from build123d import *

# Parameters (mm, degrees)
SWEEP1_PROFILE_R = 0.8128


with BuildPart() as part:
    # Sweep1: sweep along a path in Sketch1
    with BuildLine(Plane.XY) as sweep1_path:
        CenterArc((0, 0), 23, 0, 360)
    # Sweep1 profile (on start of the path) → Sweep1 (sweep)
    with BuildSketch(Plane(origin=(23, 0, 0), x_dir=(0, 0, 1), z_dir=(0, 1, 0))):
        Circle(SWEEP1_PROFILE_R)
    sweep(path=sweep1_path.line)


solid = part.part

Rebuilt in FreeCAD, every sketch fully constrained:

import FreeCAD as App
import Part
import Sketcher
from FreeCAD import Vector

doc = App.newDocument("Part")
body = doc.addObject("PartDesign::Body", "Body")

# Sketch on XZ plane
sketch1 = doc.addObject("Sketcher::SketchObject", "Sketch")
body.addObject(sketch1)
sketch1.AttachmentSupport = (doc.XZ_Plane, [""])
sketch1.MapMode = "FlatFace"
sketch1.addGeometry(Part.Circle(Vector(23, 0, 0), Vector(0, 0, 1), 0.8), False)
sketch1.addConstraint([
    Sketcher.Constraint("PointOnObject", 0, 3, -1),
    Sketcher.Constraint("DistanceX", -1, 1, 0, 3, 23.0),
    Sketcher.Constraint("Diameter", 0, 1.6256),
])

# Sketch on XY plane
sketch2 = doc.addObject("Sketcher::SketchObject", "Sketch001")
body.addObject(sketch2)
sketch2.AttachmentSupport = (doc.XY_Plane, [""])
sketch2.MapMode = "FlatFace"
sketch2.addGeometry(Part.Circle(Vector(0, 0, 0), Vector(0, 0, 1), 23), False)
sketch2.addConstraint([
    Sketcher.Constraint("Coincident", 0, 3, -1, 1),
    Sketcher.Constraint("Diameter", 0, 46.0),
])
doc.recompute()

additivepipe = doc.addObject("PartDesign::AdditivePipe", "AdditivePipe")
body.addObject(additivepipe)
additivepipe.Profile = sketch1
additivepipe.Spine = (sketch2, ["Edge1"])

doc.recompute()
